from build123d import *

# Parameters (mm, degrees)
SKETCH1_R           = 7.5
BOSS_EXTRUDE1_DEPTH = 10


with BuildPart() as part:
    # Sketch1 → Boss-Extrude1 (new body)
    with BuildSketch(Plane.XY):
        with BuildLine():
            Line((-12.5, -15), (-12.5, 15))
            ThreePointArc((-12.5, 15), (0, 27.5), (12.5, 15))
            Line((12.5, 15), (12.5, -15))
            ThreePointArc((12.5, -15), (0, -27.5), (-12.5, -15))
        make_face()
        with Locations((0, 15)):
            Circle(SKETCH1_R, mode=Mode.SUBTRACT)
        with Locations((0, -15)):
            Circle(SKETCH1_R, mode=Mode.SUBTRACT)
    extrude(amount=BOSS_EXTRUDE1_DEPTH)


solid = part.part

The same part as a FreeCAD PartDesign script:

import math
import FreeCAD as App
import Part
import Sketcher
Q = App.Units.Quantity

doc = App.newDocument("Part")
body = doc.addObject("PartDesign::Body", "Body")

# Sketch on XY plane
sketch1 = body.newObject("Sketcher::SketchObject", "Sketch")
sketch1.AttachmentSupport = (doc.getObject("XY_Plane"), [""])
sketch1.MapMode = "FlatFace"
sketch1.addGeometry([
    Part.LineSegment(App.Vector(-12, 15, 0), App.Vector(-12, -15, 0)),  # 0
    Part.ArcOfCircle(Part.Circle(App.Vector(0, -15, 0), App.Vector(0, 0, 1), 12), math.radians(180), math.radians(360)),  # 1
    Part.LineSegment(App.Vector(12, -15, 0), App.Vector(12, 15, 0)),  # 2
    Part.ArcOfCircle(Part.Circle(App.Vector(0, 15, 0), App.Vector(0, 0, 1), 12), math.radians(0), math.radians(180)),  # 3
    Part.Circle(App.Vector(0, -15, 0), App.Vector(0, 0, 1), 8),  # 4
    Part.Circle(App.Vector(0, 15, 0), App.Vector(0, 0, 1), 8),  # 5
], False)
sketch1.addConstraint([
    Sketcher.Constraint("Tangent", 0, 2, 1, 1),
    Sketcher.Constraint("Tangent", 1, 2, 2, 1),
    Sketcher.Constraint("Tangent", 2, 2, 3, 1),
    Sketcher.Constraint("Tangent", 3, 2, 0, 1),
    Sketcher.Constraint("Vertical", 0),
    Sketcher.Constraint("Vertical", 2),
    Sketcher.Constraint("Coincident", 4, 3, 1, 3),
    Sketcher.Constraint("Coincident", 5, 3, 3, 3),
    Sketcher.Constraint("Equal", 4, 5),
    Sketcher.Constraint("Symmetric", 1, 3, 3, 3, -1, 1),
    Sketcher.Constraint("Diameter", 4, Q("15 mm")),
    Sketcher.Constraint("Radius", 1, Q("12.5 mm")),
    Sketcher.Constraint("DistanceY", 0, 2, 0, 1, Q("30 mm")),
])
pad1 = body.newObject("PartDesign::Pad", "Pad")
pad1.Profile = sketch1
pad1.Length = 10

doc.recompute()
